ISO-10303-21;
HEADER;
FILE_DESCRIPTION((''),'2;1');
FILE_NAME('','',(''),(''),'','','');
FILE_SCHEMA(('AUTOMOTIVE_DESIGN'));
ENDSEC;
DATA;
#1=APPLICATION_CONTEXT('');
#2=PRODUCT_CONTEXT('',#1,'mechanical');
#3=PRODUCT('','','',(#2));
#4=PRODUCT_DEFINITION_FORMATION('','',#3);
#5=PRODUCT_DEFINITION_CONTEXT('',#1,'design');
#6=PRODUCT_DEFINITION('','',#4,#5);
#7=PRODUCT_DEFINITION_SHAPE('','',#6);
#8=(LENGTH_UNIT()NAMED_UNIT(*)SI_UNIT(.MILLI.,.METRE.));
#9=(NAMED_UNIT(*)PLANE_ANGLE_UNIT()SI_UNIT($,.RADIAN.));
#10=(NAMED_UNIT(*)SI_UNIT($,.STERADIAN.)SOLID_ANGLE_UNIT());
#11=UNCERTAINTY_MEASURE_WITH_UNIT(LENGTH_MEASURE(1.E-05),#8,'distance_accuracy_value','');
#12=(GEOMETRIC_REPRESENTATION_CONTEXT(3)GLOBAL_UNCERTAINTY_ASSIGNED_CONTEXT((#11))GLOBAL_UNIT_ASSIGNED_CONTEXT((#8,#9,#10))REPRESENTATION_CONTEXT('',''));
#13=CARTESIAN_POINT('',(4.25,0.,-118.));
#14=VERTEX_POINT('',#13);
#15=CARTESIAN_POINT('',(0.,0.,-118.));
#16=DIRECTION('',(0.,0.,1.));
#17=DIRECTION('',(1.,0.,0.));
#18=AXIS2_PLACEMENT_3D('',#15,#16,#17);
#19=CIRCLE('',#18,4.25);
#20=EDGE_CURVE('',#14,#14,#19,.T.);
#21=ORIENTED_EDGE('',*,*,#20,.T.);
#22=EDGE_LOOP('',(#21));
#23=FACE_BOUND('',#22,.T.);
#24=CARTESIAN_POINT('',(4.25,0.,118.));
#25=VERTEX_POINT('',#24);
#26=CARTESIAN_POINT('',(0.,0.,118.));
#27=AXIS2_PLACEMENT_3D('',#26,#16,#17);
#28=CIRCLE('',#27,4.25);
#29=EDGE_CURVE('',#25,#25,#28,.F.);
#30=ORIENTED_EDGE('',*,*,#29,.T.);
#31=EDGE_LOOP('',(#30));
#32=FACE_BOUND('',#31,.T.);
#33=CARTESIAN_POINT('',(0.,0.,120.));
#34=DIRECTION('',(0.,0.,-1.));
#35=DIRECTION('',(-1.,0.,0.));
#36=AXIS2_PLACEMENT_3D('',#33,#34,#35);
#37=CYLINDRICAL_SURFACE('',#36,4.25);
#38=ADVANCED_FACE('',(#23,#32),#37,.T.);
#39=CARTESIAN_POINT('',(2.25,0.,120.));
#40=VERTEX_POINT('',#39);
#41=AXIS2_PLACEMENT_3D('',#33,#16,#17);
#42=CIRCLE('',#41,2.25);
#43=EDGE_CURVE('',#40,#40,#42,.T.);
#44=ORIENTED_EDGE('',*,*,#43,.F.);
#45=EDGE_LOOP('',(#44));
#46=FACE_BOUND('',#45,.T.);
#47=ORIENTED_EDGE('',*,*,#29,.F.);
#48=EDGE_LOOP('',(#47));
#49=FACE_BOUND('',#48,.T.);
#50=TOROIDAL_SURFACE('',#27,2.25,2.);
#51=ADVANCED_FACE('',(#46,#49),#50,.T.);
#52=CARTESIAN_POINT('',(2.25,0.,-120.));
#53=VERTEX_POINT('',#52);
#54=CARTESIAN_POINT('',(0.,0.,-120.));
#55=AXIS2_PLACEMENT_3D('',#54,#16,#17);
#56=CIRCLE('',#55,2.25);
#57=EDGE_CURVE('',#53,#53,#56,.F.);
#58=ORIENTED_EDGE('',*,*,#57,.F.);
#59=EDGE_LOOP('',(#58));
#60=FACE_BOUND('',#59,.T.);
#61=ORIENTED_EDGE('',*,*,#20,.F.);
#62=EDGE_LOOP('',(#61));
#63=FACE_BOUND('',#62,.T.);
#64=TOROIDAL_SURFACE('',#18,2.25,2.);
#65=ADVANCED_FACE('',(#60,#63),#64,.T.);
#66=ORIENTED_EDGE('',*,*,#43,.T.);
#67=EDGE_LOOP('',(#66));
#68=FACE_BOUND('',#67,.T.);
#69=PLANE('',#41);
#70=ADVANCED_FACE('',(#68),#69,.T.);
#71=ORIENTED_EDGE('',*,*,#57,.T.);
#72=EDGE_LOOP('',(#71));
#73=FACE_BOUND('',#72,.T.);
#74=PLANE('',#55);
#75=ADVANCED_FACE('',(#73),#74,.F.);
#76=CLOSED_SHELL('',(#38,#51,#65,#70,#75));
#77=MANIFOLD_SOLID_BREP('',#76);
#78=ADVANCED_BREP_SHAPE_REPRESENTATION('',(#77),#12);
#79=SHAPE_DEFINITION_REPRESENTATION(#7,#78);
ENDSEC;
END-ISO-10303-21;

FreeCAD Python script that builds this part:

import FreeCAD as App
import Part
import Sketcher
from FreeCAD import Vector
Q = App.Units.Quantity


def edges_at(feature, points):
    """Names of the edges that pass closest to the given points."""
    edges = feature.Shape.Edges
    near = lambda p: min(range(len(edges)), key=lambda i: edges[i].distToShape(Part.Vertex(*p))[0])
    return sorted({f"Edge{near(p) + 1}" for p in points})

doc = App.newDocument("Part")
body = doc.addObject("PartDesign::Body", "Body")

sketch1 = body.newObject("Sketcher::SketchObject", "Sketch")
sketch1.AttachmentSupport = (doc.getObject("XY_Plane"), [""])
sketch1.MapMode = "FlatFace"
sketch1.addGeometry(Part.Circle(Vector(0, 0, 0), Vector(0, 0, 1), 4.2), False)
sketch1.addConstraint([
    Sketcher.Constraint("Coincident", 0, 3, -1, 1),
    Sketcher.Constraint("Diameter", 0, Q("8.5 mm")),
])
pad1 = body.newObject("PartDesign::Pad", "Pad")
pad1.Profile = sketch1
pad1.Length = 240
pad1.Midplane = True
doc.recompute()

fillet = body.newObject("PartDesign::Fillet", "Fillet")
fillet.Base = (pad1, edges_at(pad1, [(-4.25, 0, -120), (-4.25, 0, 120)]))
fillet.Radius = 2

doc.recompute()
